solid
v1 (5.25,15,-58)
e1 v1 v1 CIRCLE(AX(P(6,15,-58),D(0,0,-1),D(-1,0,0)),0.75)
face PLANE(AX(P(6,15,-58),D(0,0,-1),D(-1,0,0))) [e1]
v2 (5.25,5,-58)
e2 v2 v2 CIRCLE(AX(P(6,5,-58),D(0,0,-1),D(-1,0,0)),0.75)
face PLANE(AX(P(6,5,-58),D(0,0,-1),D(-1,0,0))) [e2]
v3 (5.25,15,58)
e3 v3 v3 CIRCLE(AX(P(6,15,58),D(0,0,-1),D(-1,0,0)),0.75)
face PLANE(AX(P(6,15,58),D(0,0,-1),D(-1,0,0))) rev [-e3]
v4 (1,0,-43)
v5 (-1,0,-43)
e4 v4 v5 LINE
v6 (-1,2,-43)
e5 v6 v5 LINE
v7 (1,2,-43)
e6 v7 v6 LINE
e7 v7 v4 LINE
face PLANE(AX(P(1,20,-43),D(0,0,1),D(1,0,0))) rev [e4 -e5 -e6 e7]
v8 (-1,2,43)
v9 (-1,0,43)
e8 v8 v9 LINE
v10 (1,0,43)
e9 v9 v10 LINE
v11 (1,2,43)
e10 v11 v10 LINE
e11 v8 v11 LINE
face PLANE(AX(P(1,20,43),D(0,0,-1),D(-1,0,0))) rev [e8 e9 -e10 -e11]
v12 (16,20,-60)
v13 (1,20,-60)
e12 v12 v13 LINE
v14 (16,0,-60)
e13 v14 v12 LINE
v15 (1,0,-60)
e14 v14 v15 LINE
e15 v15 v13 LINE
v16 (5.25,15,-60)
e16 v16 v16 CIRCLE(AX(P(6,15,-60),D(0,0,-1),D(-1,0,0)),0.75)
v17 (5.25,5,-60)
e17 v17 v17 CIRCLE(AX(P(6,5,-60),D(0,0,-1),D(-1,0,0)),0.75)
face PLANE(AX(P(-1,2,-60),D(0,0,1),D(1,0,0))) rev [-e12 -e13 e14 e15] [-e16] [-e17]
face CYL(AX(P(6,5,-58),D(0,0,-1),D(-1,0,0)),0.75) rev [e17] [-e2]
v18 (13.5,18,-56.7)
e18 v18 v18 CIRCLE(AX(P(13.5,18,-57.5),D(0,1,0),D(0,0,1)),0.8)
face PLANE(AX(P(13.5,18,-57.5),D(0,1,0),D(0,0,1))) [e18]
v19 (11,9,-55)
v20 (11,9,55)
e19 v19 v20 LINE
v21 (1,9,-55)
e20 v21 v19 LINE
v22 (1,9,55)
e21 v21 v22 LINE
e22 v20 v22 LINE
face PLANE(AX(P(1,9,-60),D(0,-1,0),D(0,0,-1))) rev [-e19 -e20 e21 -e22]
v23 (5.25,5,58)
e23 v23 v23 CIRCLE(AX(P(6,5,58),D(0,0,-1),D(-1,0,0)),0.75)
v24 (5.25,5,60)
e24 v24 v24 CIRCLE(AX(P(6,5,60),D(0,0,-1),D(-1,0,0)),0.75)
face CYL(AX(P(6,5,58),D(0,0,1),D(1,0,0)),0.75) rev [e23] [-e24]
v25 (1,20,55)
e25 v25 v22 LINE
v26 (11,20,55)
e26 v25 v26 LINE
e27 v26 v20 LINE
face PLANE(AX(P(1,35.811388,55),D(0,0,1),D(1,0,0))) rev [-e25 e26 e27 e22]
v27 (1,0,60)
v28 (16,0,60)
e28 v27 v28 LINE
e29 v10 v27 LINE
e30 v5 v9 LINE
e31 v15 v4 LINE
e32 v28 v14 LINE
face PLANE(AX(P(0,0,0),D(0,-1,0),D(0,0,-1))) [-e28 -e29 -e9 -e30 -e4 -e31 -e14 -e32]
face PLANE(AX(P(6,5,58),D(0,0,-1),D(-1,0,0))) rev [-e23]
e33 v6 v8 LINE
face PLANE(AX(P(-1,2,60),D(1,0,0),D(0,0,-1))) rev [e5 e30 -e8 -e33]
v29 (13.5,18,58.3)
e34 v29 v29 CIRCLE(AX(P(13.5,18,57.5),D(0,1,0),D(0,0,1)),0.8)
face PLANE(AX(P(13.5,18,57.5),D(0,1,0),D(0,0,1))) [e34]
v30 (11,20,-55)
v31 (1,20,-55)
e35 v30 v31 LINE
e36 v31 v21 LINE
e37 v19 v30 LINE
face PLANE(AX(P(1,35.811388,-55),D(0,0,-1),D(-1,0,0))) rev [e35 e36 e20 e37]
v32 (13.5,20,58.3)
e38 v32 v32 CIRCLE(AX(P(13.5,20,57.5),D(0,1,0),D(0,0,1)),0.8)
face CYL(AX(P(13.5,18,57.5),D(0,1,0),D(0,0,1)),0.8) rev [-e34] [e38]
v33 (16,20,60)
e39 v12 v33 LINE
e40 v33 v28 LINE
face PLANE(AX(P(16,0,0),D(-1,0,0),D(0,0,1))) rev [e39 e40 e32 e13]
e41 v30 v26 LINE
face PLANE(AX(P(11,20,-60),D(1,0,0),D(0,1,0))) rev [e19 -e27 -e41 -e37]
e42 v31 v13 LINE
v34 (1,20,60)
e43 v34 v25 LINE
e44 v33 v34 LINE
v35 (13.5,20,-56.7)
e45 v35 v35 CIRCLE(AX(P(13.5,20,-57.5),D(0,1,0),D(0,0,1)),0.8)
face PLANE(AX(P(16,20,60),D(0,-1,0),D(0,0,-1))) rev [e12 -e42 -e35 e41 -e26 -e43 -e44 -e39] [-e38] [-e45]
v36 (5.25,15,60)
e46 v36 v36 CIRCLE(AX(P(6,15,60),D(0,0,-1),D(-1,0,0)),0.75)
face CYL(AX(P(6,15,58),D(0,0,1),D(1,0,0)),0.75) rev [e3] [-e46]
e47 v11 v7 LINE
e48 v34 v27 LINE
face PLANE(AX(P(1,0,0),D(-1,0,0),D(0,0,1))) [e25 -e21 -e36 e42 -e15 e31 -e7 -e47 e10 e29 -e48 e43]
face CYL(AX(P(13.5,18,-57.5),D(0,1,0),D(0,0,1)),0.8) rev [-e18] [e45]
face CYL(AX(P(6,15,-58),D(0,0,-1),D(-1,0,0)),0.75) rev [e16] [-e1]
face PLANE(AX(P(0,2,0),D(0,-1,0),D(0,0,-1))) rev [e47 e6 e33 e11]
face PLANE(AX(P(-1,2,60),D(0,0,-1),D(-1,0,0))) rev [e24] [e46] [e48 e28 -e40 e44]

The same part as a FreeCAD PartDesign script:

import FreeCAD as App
import Part
import Sketcher

V = App.Vector
Q = App.Units.Quantity


def add_polygon(sketch, points):
    """Adds a closed chain of lines whose ends are joined by coincident constraints."""
    first, n = sketch.GeometryCount, len(points)
    for a, b in zip(points, points[1:] + points[:1]):
        sketch.addGeometry(Part.LineSegment(App.Vector(*a, 0), App.Vector(*b, 0)), False)
    for i in range(n):
        sketch.addConstraint(Sketcher.Constraint("Coincident", first + i, 2, first + (i + 1) % n, 1))

doc = App.newDocument("Part")
params = doc.addObject("Spreadsheet::Sheet", "Params")
for row, (alias, value) in enumerate([
    ("sketch1_width", "2 mm"),
    ("sketch1_height", "120 mm"),
    ("pad1_length", "2 mm"),
    ("sketch2_width", "20 mm"),
    ("sketch2_height", "120 mm"),
    ("pad2_length", "15 mm"),
    ("sketch3_width", "10 mm"),
    ("sketch3_height", "11 mm"),
    ("sketch4_width", "2 mm"),
    ("sketch4_height", "17 mm"),
    ("sketch5_width", "15 mm"),
    ("sketch5_height", "5 mm"),
    ("pad3_length", "11 mm"),
    ("sketch6_diameter", "1.5 mm"),
    ("pocket3_length", "2 mm"),
    ("sketch7_diameter", "1.5 mm"),
    ("pocket4_length", "2 mm"),
    ("sketch8_diameter", "1.6 mm"),
    ("pocket5_length", "2 mm"),
], start=1):
    params.set(f"A{row}", alias)
    params.set(f"B{row}", "=" + value)
    params.setAlias(f"B{row}", alias)

body = doc.addObject("PartDesign::Body", "Body")

# Sketch on XZ plane
sketch1 = doc.addObject("Sketcher::SketchObject", "Sketch")
body.addObject(sketch1)
sketch1.AttachmentSupport = (doc.XZ_Plane, [""])
sketch1.MapMode = "FlatFace"
add_polygon(sketch1, [(-1, -60), (-1, 60), (1, 60), (1, -60)])  # lines 0-3
sketch1.addConstraint(Sketcher.Constraint("Vertical", 0))
sketch1.addConstraint(Sketcher.Constraint("Horizontal", 1))
sketch1.addConstraint(Sketcher.Constraint("Vertical", 2))
sketch1.addConstraint(Sketcher.Constraint("Horizontal", 3))
sketch1.addConstraint(Sketcher.Constraint("Symmetric", 0, 2, 2, 2, -1, 1))
sketch1.addConstraint(Sketcher.Constraint("DistanceX", 1, 1, 1, 2, Q("2 mm")))
sketch1.addConstraint(Sketcher.Constraint("DistanceY", 0, 1, 0, 2, Q("120 mm")))
sketch1.setExpression("Constraints[9]", "Params.sketch1_width")
sketch1.setExpression("Constraints[10]", "Params.sketch1_height")
pad1 = doc.addObject("PartDesign::Pad", "Pad")
body.addObject(pad1)
pad1.Profile = sketch1
pad1.setExpression("Length", "Params.pad1_length")
pad1.Reversed = True

# Sketch on YZ plane
sketch2 = doc.addObject("Sketcher::SketchObject", "Sketch001")
body.addObject(sketch2)
sketch2.AttachmentSupport = (doc.YZ_Plane, [""])
sketch2.MapMode = "FlatFace"
sketch2.AttachmentOffset = App.Placement(V(0, 0, 1), App.Rotation())
add_polygon(sketch2, [(20, 60), (0, 60), (0, -60), (20, -60)])  # lines 0-3
sketch2.addConstraint(Sketcher.Constraint("Horizontal", 0))
sketch2.addConstraint(Sketcher.Constraint("Vertical", 1))
sketch2.addConstraint(Sketcher.Constraint("Horizontal", 2))
sketch2.addConstraint(Sketcher.Constraint("Vertical", 3))
sketch2.addConstraint(Sketcher.Constraint("Symmetric", 0, 2, 1, 2, -1, 1))
sketch2.addConstraint(Sketcher.Constraint("DistanceX", 0, 2, 0, 1, Q("20 mm")))
sketch2.addConstraint(Sketcher.Constraint("DistanceY", 1, 2, 1, 1, Q("120 mm")))
sketch2.setExpression("Constraints[9]", "Params.sketch2_width")
sketch2.setExpression("Constraints[10]", "Params.sketch2_height")
pad2 = doc.addObject("PartDesign::Pad", "Pad001")
body.addObject(pad2)
pad2.Profile = sketch2
pad2.setExpression("Length", "Params.pad2_length")

# Sketch on XY plane
sketch3 = doc.addObject("Sketcher::SketchObject", "Sketch002")
body.addObject(sketch3)
sketch3.AttachmentSupport = (doc.XY_Plane, [""])
sketch3.MapMode = "FlatFace"
sketch3.AttachmentOffset = App.Placement(V(0, 0, 60), App.Rotation())
add_polygon(sketch3, [(1, 20), (1, 9), (11, 9), (11, 20)])  # lines 0-3
sketch3.addConstraint(Sketcher.Constraint("Vertical", 0))
sketch3.addConstraint(Sketcher.Constraint("Horizontal", 1))
sketch3.addConstraint(Sketcher.Constraint("Vertical", 2))
sketch3.addConstraint(Sketcher.Constraint("Horizontal", 3))
sketch3.addConstraint(Sketcher.Constraint("DistanceX", 1, 1, 1, 2, Q("10 mm")))
sketch3.addConstraint(Sketcher.Constraint("DistanceY", 0, 2, 0, 1, Q("11 mm")))
sketch3.addConstraint(Sketcher.Constraint("DistanceX", -1, 1, 0, 2, Q("1 mm")))
sketch3.addConstraint(Sketcher.Constraint("DistanceY", -1, 1, 0, 2, Q("9 mm")))
sketch3.setExpression("Constraints[8]", "Params.sketch3_width")
sketch3.setExpression("Constraints[9]", "Params.sketch3_height")
pocket1 = doc.addObject("PartDesign::Pocket", "Pocket")
body.addObject(pocket1)
pocket1.Profile = sketch3
pocket1.Type = "ThroughAll"

# Sketch on XZ plane
sketch4 = doc.addObject("Sketcher::SketchObject", "Sketch003")
body.addObject(sketch4)
sketch4.AttachmentSupport = (doc.XZ_Plane, [""])
sketch4.MapMode = "FlatFace"
add_polygon(sketch4, [(-1, 60), (-1, 43), (1, 43), (1, 60)])  # lines 0-3
add_polygon(sketch4, [(-1, -43), (-1, -60), (1, -60), (1, -43)])  # lines 4-7
sketch4.addConstraint(Sketcher.Constraint("Vertical", 0))
sketch4.addConstraint(Sketcher.Constraint("Horizontal", 1))
sketch4.addConstraint(Sketcher.Constraint("Vertical", 2))
sketch4.addConstraint(Sketcher.Constraint("Horizontal", 3))
sketch4.addConstraint(Sketcher.Constraint("Vertical", 4))
sketch4.addConstraint(Sketcher.Constraint("Horizontal", 5))
sketch4.addConstraint(Sketcher.Constraint("Vertical", 6))
sketch4.addConstraint(Sketcher.Constraint("Horizontal", 7))
sketch4.addConstraint(Sketcher.Constraint("Symmetric", 2, 2, 4, 2, -1, 1))
sketch4.addConstraint(Sketcher.Constraint("Symmetric", 0, 2, 6, 2, -1, 1))
sketch4.addConstraint(Sketcher.Constraint("Vertical", 3, 2, 4, 2))
sketch4.addConstraint(Sketcher.Constraint("DistanceX", 1, 1, 1, 2, Q("2 mm")))
sketch4.addConstraint(Sketcher.Constraint("DistanceY", 0, 2, 0, 1, Q("17 mm")))
sketch4.addConstraint(Sketcher.Constraint("DistanceY", -1, 1, 0, 2, Q("43 mm")))
sketch4.setExpression("Constraints[19]", "Params.sketch4_width")
sketch4.setExpression("Constraints[20]", "Params.sketch4_height")
pocket2 = doc.addObject("PartDesign::Pocket", "Pocket001")
body.addObject(pocket2)
pocket2.Profile = sketch4
pocket2.Type = "ThroughAll"

# Sketch on XZ plane
sketch5 = doc.addObject("Sketcher::SketchObject", "Sketch004")
body.addObject(sketch5)
sketch5.AttachmentSupport = (doc.XZ_Plane, [""])
sketch5.MapMode = "FlatFace"
sketch5.AttachmentOffset = App.Placement(V(0, 0, -9), App.Rotation())
add_polygon(sketch5, [(1, 55), (1, 60), (16, 60), (16, 55)])  # lines 0-3
add_polygon(sketch5, [(1, -60), (1, -55), (16, -55), (16, -60)])  # lines 4-7
sketch5.addConstraint(Sketcher.Constraint("Vertical", 0))
sketch5.addConstraint(Sketcher.Constraint("Horizontal", 1))
sketch5.addConstraint(Sketcher.Constraint("Vertical", 2))
sketch5.addConstraint(Sketcher.Constraint("Horizontal", 3))
sketch5.addConstraint(Sketcher.Constraint("Vertical", 4))
sketch5.addConstraint(Sketcher.Constraint("Horizontal", 5))
sketch5.addConstraint(Sketcher.Constraint("Vertical", 6))
sketch5.addConstraint(Sketcher.Constraint("Horizontal", 7))
sketch5.addConstraint(Sketcher.Constraint("Symmetric", 3, 2, 4, 2, -1))
sketch5.addConstraint(Sketcher.Constraint("Symmetric", 1, 2, 6, 2, -1))
sketch5.addConstraint(Sketcher.Constraint("DistanceX", 1, 1, 1, 2, Q("15 mm")))
sketch5.addConstraint(Sketcher.Constraint("DistanceY", 0, 1, 0, 2, Q("5 mm")))
sketch5.addConstraint(Sketcher.Constraint("DistanceX", -1, 1, 0, 2, Q("1 mm")))
sketch5.addConstraint(Sketcher.Constraint("DistanceY", -1, 1, 0, 2, Q("60 mm")))
sketch5.setExpression("Constraints[18]", "Params.sketch5_width")
sketch5.setExpression("Constraints[19]", "Params.sketch5_height")
pad3 = doc.addObject("PartDesign::Pad", "Pad002")
body.addObject(pad3)
pad3.Profile = sketch5
pad3.setExpression("Length", "Params.pad3_length")
pad3.Reversed = True

# Sketch on XY plane
sketch6 = doc.addObject("Sketcher::SketchObject", "Sketch005")
body.addObject(sketch6)
sketch6.AttachmentSupport = (doc.XY_Plane, [""])
sketch6.MapMode = "FlatFace"
sketch6.AttachmentOffset = App.Placement(V(0, 0, -60), App.Rotation())
sketch6.addGeometry(Part.Circle(V(6, 15, 0), V(0, 0, 1), 0.8), False)
sketch6.addGeometry(Part.Circle(V(6, 5, 0), V(0, 0, 1), 0.8), False)
sketch6.addConstraint(Sketcher.Constraint("Equal", 0, 1))
sketch6.addConstraint(Sketcher.Constraint("Vertical", 0, 3, 1, 3))
sketch6.addConstraint(Sketcher.Constraint("Diameter", 0, Q("1.5 mm")))
sketch6.addConstraint(Sketcher.Constraint("DistanceX", -1, 1, 0, 3, Q("6 mm")))
sketch6.addConstraint(Sketcher.Constraint("DistanceY", -1, 1, 0, 3, Q("15 mm")))
sketch6.addConstraint(Sketcher.Constraint("DistanceY", -1, 1, 1, 3, Q("5 mm")))
sketch6.setExpression("Constraints[2]", "Params.sketch6_diameter")
pocket3 = doc.addObject("PartDesign::Pocket", "Pocket002")
body.addObject(pocket3)
pocket3.Profile = sketch6
pocket3.setExpression("Length", "Params.pocket3_length")
pocket3.Reversed = True

# Sketch on XY plane
sketch7 = doc.addObject("Sketcher::SketchObject", "Sketch006")
body.addObject(sketch7)
sketch7.AttachmentSupport = (doc.XY_Plane, [""])
sketch7.MapMode = "FlatFace"
sketch7.AttachmentOffset = App.Placement(V(0, 0, 58), App.Rotation())
sketch7.addGeometry(Part.Circle(V(6, 15, 0), V(0, 0, 1), 0.8), False)
sketch7.addGeometry(Part.Circle(V(6, 5, 0), V(0, 0, 1), 0.8), False)
sketch7.addConstraint(Sketcher.Constraint("Equal", 0, 1))
sketch7.addConstraint(Sketcher.Constraint("Vertical", 0, 3, 1, 3))
sketch7.addConstraint(Sketcher.Constraint("Diameter", 0, Q("1.5 mm")))
sketch7.addConstraint(Sketcher.Constraint("DistanceX", -1, 1, 0, 3, Q("6 mm")))
sketch7.addConstraint(Sketcher.Constraint("DistanceY", -1, 1, 0, 3, Q("15 mm")))
sketch7.addConstraint(Sketcher.Constraint("DistanceY", -1, 1, 1, 3, Q("5 mm")))
sketch7.setExpression("Constraints[2]", "Params.sketch7_diameter")
pocket4 = doc.addObject("PartDesign::Pocket", "Pocket003")
body.addObject(pocket4)
pocket4.Profile = sketch7
pocket4.setExpression("Length", "Params.pocket4_length")
pocket4.Reversed = True

# Sketch on XZ plane
sketch8 = doc.addObject("Sketcher::SketchObject", "Sketch007")
body.addObject(sketch8)
sketch8.AttachmentSupport = (doc.XZ_Plane, [""])
sketch8.MapMode = "FlatFace"
sketch8.AttachmentOffset = App.Placement(V(0, 0, -20), App.Rotation())
sketch8.addGeometry(Part.Circle(V(13.5, 57.5, 0), V(0, 0, 1), 0.8), False)
sketch8.addGeometry(Part.Circle(V(13.5, -57.5, 0), V(0, 0, 1), 0.8), False)
sketch8.addConstraint(Sketcher.Constraint("Equal", 0, 1))
sketch8.addConstraint(Sketcher.Constraint("Symmetric", 0, 3, 1, 3, -1))
sketch8.addConstraint(Sketcher.Constraint("Diameter", 0, Q("1.6 mm")))
sketch8.addConstraint(Sketcher.Constraint("DistanceY", 1, 3, 0, 3, Q("115 mm")))
sketch8.addConstraint(Sketcher.Constraint("DistanceX", -1, 1, 0, 3, Q("13.5 mm")))
sketch8.setExpression("Constraints[2]", "Params.sketch8_diameter")
pocket5 = doc.addObject("PartDesign::Pocket", "Pocket004")
body.addObject(pocket5)
pocket5.Profile = sketch8
pocket5.setExpression("Length", "Params.pocket5_length")
pocket5.Reversed = True

doc.recompute()
